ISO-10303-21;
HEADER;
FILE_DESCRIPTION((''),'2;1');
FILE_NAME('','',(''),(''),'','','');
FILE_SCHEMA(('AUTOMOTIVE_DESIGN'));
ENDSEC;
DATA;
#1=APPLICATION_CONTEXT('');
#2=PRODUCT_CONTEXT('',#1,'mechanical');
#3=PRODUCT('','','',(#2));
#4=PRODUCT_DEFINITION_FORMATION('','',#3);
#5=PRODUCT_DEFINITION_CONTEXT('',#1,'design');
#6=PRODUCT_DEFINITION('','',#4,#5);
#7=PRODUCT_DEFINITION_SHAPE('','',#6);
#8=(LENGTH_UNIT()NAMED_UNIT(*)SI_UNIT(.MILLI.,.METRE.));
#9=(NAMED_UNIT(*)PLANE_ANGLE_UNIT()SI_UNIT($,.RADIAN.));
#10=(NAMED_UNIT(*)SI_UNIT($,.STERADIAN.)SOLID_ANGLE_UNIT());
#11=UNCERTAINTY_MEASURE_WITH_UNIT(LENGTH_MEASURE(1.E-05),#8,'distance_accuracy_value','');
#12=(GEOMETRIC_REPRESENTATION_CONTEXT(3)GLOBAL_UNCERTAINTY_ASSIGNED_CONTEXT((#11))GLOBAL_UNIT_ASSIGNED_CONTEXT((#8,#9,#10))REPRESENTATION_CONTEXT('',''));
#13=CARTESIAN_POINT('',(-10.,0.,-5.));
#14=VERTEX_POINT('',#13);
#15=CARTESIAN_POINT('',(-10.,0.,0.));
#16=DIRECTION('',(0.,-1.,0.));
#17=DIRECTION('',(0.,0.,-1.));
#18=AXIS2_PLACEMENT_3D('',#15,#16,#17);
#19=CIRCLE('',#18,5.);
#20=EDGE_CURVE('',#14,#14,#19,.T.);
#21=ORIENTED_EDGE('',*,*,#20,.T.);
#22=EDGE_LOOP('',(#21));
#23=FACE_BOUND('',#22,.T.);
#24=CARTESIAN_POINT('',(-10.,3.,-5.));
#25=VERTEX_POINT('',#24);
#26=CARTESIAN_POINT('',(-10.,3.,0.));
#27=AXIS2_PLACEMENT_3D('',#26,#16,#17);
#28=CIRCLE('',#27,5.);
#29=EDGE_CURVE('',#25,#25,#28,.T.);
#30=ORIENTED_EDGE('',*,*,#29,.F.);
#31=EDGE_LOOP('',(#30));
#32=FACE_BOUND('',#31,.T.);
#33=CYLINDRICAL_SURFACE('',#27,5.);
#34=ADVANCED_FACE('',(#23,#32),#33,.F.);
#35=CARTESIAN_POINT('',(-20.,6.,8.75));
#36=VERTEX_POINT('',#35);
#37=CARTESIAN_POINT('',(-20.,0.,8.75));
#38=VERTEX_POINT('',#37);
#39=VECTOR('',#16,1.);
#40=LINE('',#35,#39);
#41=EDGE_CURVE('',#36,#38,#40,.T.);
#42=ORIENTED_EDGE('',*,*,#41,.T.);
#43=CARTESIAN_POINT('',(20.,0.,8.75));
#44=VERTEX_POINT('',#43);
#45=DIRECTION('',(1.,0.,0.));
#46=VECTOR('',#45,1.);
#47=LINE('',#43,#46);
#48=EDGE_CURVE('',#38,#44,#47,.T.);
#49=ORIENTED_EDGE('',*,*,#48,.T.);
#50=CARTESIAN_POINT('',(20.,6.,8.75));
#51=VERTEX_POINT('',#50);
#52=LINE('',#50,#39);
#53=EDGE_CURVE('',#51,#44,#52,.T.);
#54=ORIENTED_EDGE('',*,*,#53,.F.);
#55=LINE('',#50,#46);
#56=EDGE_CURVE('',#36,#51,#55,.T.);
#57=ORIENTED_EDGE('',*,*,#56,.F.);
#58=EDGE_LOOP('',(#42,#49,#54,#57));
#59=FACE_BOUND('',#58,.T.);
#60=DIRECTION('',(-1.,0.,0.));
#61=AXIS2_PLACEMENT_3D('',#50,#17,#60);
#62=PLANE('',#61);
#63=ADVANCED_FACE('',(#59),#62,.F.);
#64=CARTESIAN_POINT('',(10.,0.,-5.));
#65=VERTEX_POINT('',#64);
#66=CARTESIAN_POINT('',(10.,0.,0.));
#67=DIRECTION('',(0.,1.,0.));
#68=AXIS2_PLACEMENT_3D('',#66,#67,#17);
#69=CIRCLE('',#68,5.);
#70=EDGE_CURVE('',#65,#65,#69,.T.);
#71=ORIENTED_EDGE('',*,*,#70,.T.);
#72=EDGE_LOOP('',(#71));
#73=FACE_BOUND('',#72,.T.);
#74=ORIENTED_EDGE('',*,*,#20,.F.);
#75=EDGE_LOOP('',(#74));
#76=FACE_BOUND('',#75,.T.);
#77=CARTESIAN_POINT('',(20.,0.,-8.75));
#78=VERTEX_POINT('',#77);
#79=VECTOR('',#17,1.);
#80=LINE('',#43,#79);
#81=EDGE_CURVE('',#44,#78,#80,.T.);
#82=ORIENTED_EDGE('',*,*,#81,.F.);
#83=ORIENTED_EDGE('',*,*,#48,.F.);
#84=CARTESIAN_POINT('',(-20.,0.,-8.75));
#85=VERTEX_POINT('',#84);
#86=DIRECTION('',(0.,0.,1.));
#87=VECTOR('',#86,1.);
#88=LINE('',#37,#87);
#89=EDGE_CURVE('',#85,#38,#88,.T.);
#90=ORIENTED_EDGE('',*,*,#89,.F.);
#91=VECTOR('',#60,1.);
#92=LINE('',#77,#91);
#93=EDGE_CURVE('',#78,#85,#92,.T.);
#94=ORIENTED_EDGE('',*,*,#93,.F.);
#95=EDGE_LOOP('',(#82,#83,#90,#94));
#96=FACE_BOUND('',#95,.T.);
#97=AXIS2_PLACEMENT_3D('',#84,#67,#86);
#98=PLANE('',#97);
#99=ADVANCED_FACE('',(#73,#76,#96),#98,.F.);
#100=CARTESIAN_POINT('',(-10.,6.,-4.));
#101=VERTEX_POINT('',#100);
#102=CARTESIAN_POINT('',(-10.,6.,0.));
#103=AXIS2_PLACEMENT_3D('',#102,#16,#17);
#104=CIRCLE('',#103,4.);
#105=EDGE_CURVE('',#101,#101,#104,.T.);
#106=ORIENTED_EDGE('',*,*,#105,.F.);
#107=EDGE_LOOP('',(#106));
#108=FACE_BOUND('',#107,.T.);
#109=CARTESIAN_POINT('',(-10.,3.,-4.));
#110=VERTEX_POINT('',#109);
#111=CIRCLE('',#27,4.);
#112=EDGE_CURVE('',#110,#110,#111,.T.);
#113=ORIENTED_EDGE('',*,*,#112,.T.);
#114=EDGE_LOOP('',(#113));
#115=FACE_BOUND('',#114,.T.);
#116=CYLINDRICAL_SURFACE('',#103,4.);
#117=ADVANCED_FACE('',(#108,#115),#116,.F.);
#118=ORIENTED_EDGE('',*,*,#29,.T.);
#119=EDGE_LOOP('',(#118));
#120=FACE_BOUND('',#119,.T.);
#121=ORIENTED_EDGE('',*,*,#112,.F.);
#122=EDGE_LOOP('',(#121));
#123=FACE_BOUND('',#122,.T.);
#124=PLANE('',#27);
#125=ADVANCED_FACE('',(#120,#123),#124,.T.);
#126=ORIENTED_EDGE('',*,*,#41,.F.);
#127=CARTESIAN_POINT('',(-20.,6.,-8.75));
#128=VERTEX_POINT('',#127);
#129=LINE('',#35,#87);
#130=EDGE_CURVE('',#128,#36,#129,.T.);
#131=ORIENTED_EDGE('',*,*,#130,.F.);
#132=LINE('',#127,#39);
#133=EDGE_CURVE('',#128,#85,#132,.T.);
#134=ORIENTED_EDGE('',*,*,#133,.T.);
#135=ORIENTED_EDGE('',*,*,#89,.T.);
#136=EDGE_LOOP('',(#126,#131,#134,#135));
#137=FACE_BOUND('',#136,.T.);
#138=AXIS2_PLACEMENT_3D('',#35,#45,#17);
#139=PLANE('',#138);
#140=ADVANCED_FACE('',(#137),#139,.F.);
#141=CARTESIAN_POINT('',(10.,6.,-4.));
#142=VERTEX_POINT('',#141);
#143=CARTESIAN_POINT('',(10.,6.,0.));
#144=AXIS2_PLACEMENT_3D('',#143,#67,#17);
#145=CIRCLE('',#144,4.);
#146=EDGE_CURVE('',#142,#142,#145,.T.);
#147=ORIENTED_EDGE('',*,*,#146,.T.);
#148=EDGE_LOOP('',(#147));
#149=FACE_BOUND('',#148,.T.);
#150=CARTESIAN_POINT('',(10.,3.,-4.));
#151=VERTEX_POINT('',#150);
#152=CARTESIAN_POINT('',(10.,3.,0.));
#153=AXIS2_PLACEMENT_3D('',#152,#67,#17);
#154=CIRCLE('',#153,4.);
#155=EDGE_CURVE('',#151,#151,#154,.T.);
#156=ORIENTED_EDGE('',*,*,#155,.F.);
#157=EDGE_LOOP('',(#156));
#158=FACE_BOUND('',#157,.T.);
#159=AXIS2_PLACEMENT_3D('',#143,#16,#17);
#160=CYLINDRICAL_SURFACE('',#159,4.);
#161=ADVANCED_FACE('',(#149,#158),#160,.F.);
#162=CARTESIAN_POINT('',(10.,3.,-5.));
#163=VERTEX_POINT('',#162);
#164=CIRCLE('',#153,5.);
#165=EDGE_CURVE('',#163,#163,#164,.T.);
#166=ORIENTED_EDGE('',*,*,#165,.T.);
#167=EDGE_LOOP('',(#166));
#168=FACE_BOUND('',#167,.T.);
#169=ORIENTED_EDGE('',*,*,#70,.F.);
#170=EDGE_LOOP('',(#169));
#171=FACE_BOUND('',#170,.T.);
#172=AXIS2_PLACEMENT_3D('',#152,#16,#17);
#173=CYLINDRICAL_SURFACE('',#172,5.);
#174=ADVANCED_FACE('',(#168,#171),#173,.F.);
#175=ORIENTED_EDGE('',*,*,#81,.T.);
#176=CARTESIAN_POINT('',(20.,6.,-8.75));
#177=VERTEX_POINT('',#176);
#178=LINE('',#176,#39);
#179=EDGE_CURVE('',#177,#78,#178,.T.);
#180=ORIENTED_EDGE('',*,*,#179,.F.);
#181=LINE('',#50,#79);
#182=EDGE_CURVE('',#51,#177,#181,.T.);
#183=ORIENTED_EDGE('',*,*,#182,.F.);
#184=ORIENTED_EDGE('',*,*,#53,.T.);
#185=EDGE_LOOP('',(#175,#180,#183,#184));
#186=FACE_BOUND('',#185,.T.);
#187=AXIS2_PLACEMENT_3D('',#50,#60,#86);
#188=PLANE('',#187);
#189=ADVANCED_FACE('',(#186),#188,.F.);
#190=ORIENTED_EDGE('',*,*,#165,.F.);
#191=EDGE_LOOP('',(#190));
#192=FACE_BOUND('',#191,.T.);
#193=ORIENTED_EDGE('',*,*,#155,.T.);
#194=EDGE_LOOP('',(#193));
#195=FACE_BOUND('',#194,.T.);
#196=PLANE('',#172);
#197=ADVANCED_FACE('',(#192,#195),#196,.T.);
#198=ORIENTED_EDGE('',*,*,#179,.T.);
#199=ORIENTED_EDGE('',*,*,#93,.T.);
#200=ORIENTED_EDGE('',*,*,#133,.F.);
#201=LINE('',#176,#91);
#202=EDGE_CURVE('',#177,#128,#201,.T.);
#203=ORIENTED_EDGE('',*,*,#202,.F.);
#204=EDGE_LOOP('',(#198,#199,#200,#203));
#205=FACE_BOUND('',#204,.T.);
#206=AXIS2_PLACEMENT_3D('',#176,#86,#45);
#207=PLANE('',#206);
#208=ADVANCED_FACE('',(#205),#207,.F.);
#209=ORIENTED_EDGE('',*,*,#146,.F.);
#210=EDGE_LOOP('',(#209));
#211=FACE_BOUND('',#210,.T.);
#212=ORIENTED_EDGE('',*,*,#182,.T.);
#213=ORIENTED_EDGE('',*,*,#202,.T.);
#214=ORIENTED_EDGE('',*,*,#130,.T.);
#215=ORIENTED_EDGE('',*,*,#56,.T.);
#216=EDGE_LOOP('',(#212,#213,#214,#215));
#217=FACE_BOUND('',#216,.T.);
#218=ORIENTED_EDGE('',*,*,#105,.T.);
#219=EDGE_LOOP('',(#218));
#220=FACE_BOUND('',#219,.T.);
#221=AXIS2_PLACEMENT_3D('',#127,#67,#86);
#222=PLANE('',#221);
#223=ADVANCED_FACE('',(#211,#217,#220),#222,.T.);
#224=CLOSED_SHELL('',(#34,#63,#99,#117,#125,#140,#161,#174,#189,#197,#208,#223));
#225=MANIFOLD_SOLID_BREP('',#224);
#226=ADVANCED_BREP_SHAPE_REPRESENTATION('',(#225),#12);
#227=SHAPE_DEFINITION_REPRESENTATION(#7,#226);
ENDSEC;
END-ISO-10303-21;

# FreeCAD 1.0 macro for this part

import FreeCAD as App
import Part
import Sketcher
from FreeCAD import Vector
Q = App.Units.Quantity


def add_polygon(sketch, points):
    """Adds a closed chain of lines whose ends are joined by coincident constraints."""
    first, n = sketch.GeometryCount, len(points)
    for a, b in zip(points, points[1:] + points[:1]):
        sketch.addGeometry(Part.LineSegment(App.Vector(*a, 0), App.Vector(*b, 0)), False)
    for i in range(n):
        sketch.addConstraint(Sketcher.Constraint("Coincident", first + i, 2, first + (i + 1) % n, 1))

doc = App.newDocument("Part")
body = doc.addObject("PartDesign::Body", "Body")

sketch1 = doc.addObject("Sketcher::SketchObject", "Sketch")
body.addObject(sketch1)
sketch1.AttachmentSupport = (doc.XZ_Plane, [""])
sketch1.MapMode = "FlatFace"
add_polygon(sketch1, [(-20, -9), (-20, 9), (20, 9), (20, -9)])
sketch1.addConstraint([
    Sketcher.Constraint("Vertical", 0),
    Sketcher.Constraint("Horizontal", 1),
    Sketcher.Constraint("Vertical", 2),
    Sketcher.Constraint("Horizontal", 3),
    Sketcher.Constraint("Symmetric", 0, 2, 2, 2, -1, 1),
    Sketcher.Constraint("DistanceX", 1, 1, 1, 2, Q("40 mm")),
    Sketcher.Constraint("DistanceY", 0, 1, 0, 2, Q("17.5 mm")),
])
pad1 = doc.addObject("PartDesign::Pad", "Pad")
body.addObject(pad1)
pad1.Profile = sketch1
pad1.Length = 6
pad1.Reversed = True

sketch2 = doc.addObject("Sketcher::SketchObject", "Sketch001")
body.addObject(sketch2)
sketch2.AttachmentSupport = (doc.XZ_Plane, [""])
sketch2.MapMode = "FlatFace"
sketch2.addGeometry(Part.Circle(Vector(-10, 0, 0), Vector(0, 0, 1), 5), False)
sketch2.addConstraint([
    Sketcher.Constraint("PointOnObject", 0, 3, -1),
    Sketcher.Constraint("Diameter", 0, Q("10 mm")),
    Sketcher.Constraint("DistanceX", 0, 3, -1, 1, Q("10 mm")),
])
pocket1 = doc.addObject("PartDesign::Pocket", "Pocket")
body.addObject(pocket1)
pocket1.Profile = sketch2
pocket1.Length = 3

sketch3 = doc.addObject("Sketcher::SketchObject", "Sketch002")
body.addObject(sketch3)
sketch3.AttachmentSupport = (doc.XZ_Plane, [""])
sketch3.MapMode = "FlatFace"
sketch3.AttachmentOffset = App.Placement(Vector(0, 0, -3), App.Rotation())
sketch3.addGeometry(Part.Circle(Vector(-10, 0, 0), Vector(0, 0, 1), 4), False)
sketch3.addConstraint([
    Sketcher.Constraint("PointOnObject", 0, 3, -1),
    Sketcher.Constraint("Diameter", 0, Q("8 mm")),
    Sketcher.Constraint("DistanceX", 0, 3, -1, 1, Q("10 mm")),
])
pocket2 = doc.addObject("PartDesign::Pocket", "Pocket001")
body.addObject(pocket2)
pocket2.Profile = sketch3
pocket2.Length = 3
doc.recompute()

mirrored = doc.addObject("PartDesign::Mirrored", "Mirrored")
body.addObject(mirrored)
mirrored.Originals = [pocket1, pocket2]
mirrored.MirrorPlane = (doc.YZ_Plane, [""])
body.Tip = mirrored

doc.recompute()
